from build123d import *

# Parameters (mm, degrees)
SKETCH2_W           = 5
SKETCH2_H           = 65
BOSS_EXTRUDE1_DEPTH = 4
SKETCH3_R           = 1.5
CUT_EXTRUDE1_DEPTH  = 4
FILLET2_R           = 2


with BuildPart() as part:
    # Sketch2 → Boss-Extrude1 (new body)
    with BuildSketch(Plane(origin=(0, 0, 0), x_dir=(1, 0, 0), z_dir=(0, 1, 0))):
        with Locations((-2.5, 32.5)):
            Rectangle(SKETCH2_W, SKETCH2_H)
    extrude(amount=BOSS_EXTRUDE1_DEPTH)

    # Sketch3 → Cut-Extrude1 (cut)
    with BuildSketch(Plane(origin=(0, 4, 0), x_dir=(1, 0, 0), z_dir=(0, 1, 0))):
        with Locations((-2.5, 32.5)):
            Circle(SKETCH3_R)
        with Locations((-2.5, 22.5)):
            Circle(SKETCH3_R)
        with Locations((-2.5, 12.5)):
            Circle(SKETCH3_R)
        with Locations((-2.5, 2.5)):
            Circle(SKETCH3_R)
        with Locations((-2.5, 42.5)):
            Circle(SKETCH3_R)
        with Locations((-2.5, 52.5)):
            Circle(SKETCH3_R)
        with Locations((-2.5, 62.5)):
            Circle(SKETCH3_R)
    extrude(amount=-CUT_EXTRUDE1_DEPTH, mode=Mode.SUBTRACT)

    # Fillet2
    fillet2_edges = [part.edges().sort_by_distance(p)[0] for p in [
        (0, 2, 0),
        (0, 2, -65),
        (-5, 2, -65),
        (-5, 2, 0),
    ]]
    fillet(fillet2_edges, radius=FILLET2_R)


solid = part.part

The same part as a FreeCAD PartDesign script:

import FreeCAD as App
import Part
import Sketcher
from FreeCAD import Vector
Q = App.Units.Quantity


def edges_at(feature, points):
    """Names of the edges that pass closest to the given points."""
    edges = feature.Shape.Edges
    near = lambda p: min(range(len(edges)), key=lambda i: edges[i].distToShape(Part.Vertex(*p))[0])
    return sorted({f"Edge{near(p) + 1}" for p in points})


def add_polygon(sketch, points):
    """Adds a closed chain of lines whose ends are joined by coincident constraints."""
    first, n = sketch.GeometryCount, len(points)
    for a, b in zip(points, points[1:] + points[:1]):
        sketch.addGeometry(Part.LineSegment(App.Vector(*a, 0), App.Vector(*b, 0)), False)
    for i in range(n):
        sketch.addConstraint(Sketcher.Constraint("Coincident", first + i, 2, first + (i + 1) % n, 1))

doc = App.newDocument("Part")
body = doc.addObject("PartDesign::Body", "Body")

# Sketch on XZ plane
sketch1 = body.newObject("Sketcher::SketchObject", "Sketch")
sketch1.AttachmentSupport = (doc.getObject("XZ_Plane"), [""])
sketch1.MapMode = "FlatFace"
add_polygon(sketch1, [(-5, -65), (-5, 0), (0, 0), (0, -65)])  # lines 0-3
sketch1.addConstraint(Sketcher.Constraint("Vertical", 0))
sketch1.addConstraint(Sketcher.Constraint("Horizontal", 1))
sketch1.addConstraint(Sketcher.Constraint("Vertical", 2))
sketch1.addConstraint(Sketcher.Constraint("Horizontal", 3))
sketch1.addConstraint(Sketcher.Constraint("Coincident", 1, 2, -1, 1))
sketch1.addConstraint(Sketcher.Constraint("DistanceX", 1, 1, 1, 2, Q("5 mm")))
sketch1.addConstraint(Sketcher.Constraint("DistanceY", 0, 1, 0, 2, Q("65 mm")))
pad1 = body.newObject("PartDesign::Pad", "Pad")
pad1.Profile = sketch1
pad1.Length = 4
pad1.Reversed = True

# Sketch on XZ plane
sketch2 = body.newObject("Sketcher::SketchObject", "Sketch001")
sketch2.AttachmentSupport = (doc.getObject("XZ_Plane"), [""])
sketch2.MapMode = "FlatFace"
sketch2.AttachmentOffset = App.Placement(Vector(0, 0, -4), App.Rotation())
sketch2.addGeometry(Part.Circle(Vector(-2.5, -32.5, 0), Vector(0, 0, 1), 1.5), False)
sketch2.addGeometry(Part.Circle(Vector(-2.5, -22.5, 0), Vector(0, 0, 1), 1.5), False)
sketch2.addGeometry(Part.Circle(Vector(-2.5, -12.5, 0), Vector(0, 0, 1), 1.5), False)
sketch2.addGeometry(Part.Circle(Vector(-2.5, -2.5, 0), Vector(0, 0, 1), 1.5), False)
sketch2.addGeometry(Part.Circle(Vector(-2.5, -42.5, 0), Vector(0, 0, 1), 1.5), False)
sketch2.addGeometry(Part.Circle(Vector(-2.5, -52.5, 0), Vector(0, 0, 1), 1.5), False)
sketch2.addGeometry(Part.Circle(Vector(-2.5, -62.5, 0), Vector(0, 0, 1), 1.5), False)
sketch2.addConstraint(Sketcher.Constraint("Equal", 0, 1))
sketch2.addConstraint(Sketcher.Constraint("Equal", 1, 2))
sketch2.addConstraint(Sketcher.Constraint("Equal", 2, 3))
sketch2.addConstraint(Sketcher.Constraint("Equal", 3, 4))
sketch2.addConstraint(Sketcher.Constraint("Equal", 4, 5))
sketch2.addConstraint(Sketcher.Constraint("Equal", 5, 6))
sketch2.addConstraint(Sketcher.Constraint("Vertical", 0, 3, 1, 3))
sketch2.addConstraint(Sketcher.Constraint("Vertical", 1, 3, 2, 3))
sketch2.addConstraint(Sketcher.Constraint("Vertical", 2, 3, 3, 3))
sketch2.addConstraint(Sketcher.Constraint("Vertical", 3, 3, 4, 3))
sketch2.addConstraint(Sketcher.Constraint("Vertical", 4, 3, 5, 3))
sketch2.addConstraint(Sketcher.Constraint("Vertical", 5, 3, 6, 3))
sketch2.addConstraint(Sketcher.Constraint("Diameter", 0, Q("3 mm")))
sketch2.addConstraint(Sketcher.Constraint("DistanceY", 0, 3, 1, 3, Q("10 mm")))
sketch2.addConstraint(Sketcher.Constraint("DistanceY", 1, 3, 2, 3, Q("10 mm")))
sketch2.addConstraint(Sketcher.Constraint("DistanceY", 2, 3, 3, 3, Q("10 mm")))
sketch2.addConstraint(Sketcher.Constraint("DistanceY", 4, 3, 0, 3, Q("10 mm")))
sketch2.addConstraint(Sketcher.Constraint("DistanceY", 5, 3, 4, 3, Q("10 mm")))
sketch2.addConstraint(Sketcher.Constraint("DistanceY", 6, 3, 5, 3, Q("10 mm")))
sketch2.addConstraint(Sketcher.Constraint("DistanceX", 0, 3, -1, 1, Q("2.5 mm")))
sketch2.addConstraint(Sketcher.Constraint("DistanceY", 0, 3, -1, 1, Q("32.5 mm")))
pocket1 = body.newObject("PartDesign::Pocket", "Pocket")
pocket1.Profile = sketch2
pocket1.Length = 4
pocket1.Reversed = True
doc.recompute()

fillet = body.newObject("PartDesign::Fillet", "Fillet")
fillet.Base = (pocket1, edges_at(pocket1, [
    (0, 2, 0),
    (0, 2, -65),
    (-5, 2, -65),
    (-5, 2, 0),
]))
fillet.Radius = 2

doc.recompute()
